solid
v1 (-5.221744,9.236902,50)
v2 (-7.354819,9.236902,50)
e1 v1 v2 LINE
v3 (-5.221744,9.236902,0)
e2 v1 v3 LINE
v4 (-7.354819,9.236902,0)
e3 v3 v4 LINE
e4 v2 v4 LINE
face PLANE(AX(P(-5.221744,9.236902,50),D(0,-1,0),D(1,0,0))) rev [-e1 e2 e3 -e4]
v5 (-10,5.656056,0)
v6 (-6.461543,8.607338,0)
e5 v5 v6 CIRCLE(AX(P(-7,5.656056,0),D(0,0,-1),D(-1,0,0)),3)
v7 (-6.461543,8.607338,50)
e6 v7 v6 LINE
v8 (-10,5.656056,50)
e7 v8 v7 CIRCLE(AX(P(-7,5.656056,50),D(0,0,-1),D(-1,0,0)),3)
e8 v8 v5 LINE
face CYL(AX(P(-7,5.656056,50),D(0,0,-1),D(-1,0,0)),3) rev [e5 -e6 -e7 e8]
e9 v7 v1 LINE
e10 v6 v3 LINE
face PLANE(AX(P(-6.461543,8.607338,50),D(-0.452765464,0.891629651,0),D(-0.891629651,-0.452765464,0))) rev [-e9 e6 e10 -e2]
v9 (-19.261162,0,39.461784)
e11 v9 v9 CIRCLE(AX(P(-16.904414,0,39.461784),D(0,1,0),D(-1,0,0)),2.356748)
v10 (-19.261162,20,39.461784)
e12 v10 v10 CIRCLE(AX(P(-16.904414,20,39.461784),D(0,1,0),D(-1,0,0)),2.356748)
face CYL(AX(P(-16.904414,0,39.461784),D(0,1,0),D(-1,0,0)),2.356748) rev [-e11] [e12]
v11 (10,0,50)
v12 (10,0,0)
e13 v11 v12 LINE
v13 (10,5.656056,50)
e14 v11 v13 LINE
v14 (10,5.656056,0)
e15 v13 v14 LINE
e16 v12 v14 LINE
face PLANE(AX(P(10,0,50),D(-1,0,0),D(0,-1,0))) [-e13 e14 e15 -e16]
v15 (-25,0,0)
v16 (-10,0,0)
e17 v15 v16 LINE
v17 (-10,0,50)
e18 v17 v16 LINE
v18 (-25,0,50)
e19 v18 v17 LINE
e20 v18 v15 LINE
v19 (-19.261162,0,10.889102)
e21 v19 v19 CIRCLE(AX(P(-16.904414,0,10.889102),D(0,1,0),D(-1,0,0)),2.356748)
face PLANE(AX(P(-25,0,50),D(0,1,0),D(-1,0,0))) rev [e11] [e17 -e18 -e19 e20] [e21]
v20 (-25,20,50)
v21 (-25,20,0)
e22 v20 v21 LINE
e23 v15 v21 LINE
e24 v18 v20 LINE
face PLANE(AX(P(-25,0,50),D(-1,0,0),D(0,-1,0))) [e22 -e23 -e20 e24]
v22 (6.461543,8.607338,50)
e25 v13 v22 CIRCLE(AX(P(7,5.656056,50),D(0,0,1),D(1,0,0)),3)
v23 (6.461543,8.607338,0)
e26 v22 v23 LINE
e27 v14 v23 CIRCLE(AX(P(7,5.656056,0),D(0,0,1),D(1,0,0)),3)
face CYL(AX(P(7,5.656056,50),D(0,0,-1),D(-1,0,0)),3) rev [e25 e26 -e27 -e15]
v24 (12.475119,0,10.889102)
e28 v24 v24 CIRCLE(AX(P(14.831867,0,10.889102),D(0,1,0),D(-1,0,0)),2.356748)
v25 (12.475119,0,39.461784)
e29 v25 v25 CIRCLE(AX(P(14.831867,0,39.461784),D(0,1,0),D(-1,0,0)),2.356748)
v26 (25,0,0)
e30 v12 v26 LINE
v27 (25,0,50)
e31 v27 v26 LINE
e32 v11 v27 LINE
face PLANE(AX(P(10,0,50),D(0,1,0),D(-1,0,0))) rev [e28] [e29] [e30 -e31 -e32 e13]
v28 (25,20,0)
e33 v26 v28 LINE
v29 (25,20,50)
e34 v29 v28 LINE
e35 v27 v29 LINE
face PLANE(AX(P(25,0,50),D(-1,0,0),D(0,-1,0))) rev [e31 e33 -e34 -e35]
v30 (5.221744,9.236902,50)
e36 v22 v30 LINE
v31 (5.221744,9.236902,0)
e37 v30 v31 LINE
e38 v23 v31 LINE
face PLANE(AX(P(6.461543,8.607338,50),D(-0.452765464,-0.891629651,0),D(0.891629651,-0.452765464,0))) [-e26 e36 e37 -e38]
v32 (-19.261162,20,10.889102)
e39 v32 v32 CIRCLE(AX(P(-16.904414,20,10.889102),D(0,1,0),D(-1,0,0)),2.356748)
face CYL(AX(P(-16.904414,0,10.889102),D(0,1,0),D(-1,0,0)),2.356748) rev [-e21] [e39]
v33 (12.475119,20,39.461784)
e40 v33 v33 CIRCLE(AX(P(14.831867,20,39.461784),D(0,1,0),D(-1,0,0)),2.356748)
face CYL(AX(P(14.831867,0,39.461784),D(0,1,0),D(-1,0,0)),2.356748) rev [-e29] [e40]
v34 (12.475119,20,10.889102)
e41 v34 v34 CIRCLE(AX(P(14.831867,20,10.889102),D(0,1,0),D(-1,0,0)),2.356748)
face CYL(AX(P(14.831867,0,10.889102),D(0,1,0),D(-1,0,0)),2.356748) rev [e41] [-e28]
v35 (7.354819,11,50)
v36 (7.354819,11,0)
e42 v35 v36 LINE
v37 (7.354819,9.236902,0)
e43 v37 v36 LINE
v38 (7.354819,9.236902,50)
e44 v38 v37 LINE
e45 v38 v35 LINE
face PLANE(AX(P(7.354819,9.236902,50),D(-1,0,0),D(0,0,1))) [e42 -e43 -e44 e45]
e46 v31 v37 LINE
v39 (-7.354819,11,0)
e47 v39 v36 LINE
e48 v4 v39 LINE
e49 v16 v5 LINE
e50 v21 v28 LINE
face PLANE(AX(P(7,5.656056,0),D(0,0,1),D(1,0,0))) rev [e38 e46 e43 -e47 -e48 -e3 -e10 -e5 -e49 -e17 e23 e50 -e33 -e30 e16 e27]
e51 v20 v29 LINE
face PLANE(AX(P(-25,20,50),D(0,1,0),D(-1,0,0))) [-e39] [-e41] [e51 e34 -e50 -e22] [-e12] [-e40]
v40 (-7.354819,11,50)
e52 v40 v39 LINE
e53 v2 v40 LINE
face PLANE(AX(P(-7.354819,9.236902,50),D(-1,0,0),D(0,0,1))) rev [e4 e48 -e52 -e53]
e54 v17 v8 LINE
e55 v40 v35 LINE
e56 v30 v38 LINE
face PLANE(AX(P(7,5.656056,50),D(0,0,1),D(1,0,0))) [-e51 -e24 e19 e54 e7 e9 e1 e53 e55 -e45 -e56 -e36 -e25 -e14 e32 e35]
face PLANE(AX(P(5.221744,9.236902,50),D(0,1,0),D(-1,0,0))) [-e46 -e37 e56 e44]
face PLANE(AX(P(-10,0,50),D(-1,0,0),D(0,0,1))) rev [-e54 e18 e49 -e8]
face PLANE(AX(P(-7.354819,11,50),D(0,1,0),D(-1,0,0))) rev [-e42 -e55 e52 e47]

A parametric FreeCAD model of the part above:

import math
import FreeCAD as App
import Part
import Sketcher
from FreeCAD import Vector
Q = App.Units.Quantity

doc = App.newDocument("Part")
body = doc.addObject("PartDesign::Body", "Body")

# Sketch on XY plane
sketch1 = body.newObject("Sketcher::SketchObject", "Sketch")
sketch1.AttachmentSupport = (doc.getObject("XY_Plane"), [""])
sketch1.MapMode = "FlatFace"
sketch1.addGeometry([
    Part.LineSegment(Vector(-10, 0, 0), Vector(-10, 5.7, 0)),  # 0
    Part.ArcOfCircle(Part.Circle(Vector(-7, 5.7, 0), Vector(0, 0, 1), 3), math.radians(80), math.radians(180)),  # 1
    Part.LineSegment(Vector(-6.5, 8.6, 0), Vector(-5.2, 9.2, 0)),  # 2
    Part.LineSegment(Vector(-5.2, 9.2, 0), Vector(-7.4, 9.2, 0)),  # 3
    Part.LineSegment(Vector(-7.4, 9.2, 0), Vector(-7.4, 11, 0)),  # 4
    Part.LineSegment(Vector(-7.4, 11, 0), Vector(7.4, 11, 0)),  # 5
    Part.LineSegment(Vector(7.4, 11, 0), Vector(7.4, 9.2, 0)),  # 6
    Part.LineSegment(Vector(7.4, 9.2, 0), Vector(5.2, 9.2, 0)),  # 7
    Part.LineSegment(Vector(5.2, 9.2, 0), Vector(6.5, 8.6, 0)),  # 8
    Part.ArcOfCircle(Part.Circle(Vector(7, 5.7, 0), Vector(0, 0, 1), 3), math.radians(0), math.radians(100)),  # 9
    Part.LineSegment(Vector(10, 5.7, 0), Vector(10, 0, 0)),  # 10
    Part.LineSegment(Vector(10, 0, 0), Vector(25, 0, 0)),  # 11
    Part.LineSegment(Vector(25, 0, 0), Vector(25, 20, 0)),  # 12
    Part.LineSegment(Vector(25, 20, 0), Vector(-25, 20, 0)),  # 13
    Part.LineSegment(Vector(-25, 20, 0), Vector(-25, 0, 0)),  # 14
    Part.LineSegment(Vector(-25, 0, 0), Vector(-10, 0, 0)),  # 15
], False)
sketch1.addConstraint([
    Sketcher.Constraint("Tangent", 0, 2, 1, 2),
    Sketcher.Constraint("Coincident", 1, 1, 2, 1),
    Sketcher.Constraint("Coincident", 2, 2, 3, 1),
    Sketcher.Constraint("Coincident", 3, 2, 4, 1),
    Sketcher.Constraint("Coincident", 4, 2, 5, 1),
    Sketcher.Constraint("Coincident", 5, 2, 6, 1),
    Sketcher.Constraint("Coincident", 6, 2, 7, 1),
    Sketcher.Constraint("Coincident", 7, 2, 8, 1),
    Sketcher.Constraint("Coincident", 8, 2, 9, 2),
    Sketcher.Constraint("Tangent", 9, 1, 10, 1),
    Sketcher.Constraint("Coincident", 10, 2, 11, 1),
    Sketcher.Constraint("Coincident", 11, 2, 12, 1),
    Sketcher.Constraint("Coincident", 12, 2, 13, 1),
    Sketcher.Constraint("Coincident", 13, 2, 14, 1),
    Sketcher.Constraint("Coincident", 14, 2, 15, 1),
    Sketcher.Constraint("Coincident", 15, 2, 0, 1),
    Sketcher.Constraint("Vertical", 0),
    Sketcher.Constraint("Horizontal", 3),
    Sketcher.Constraint("Vertical", 4),
    Sketcher.Constraint("Horizontal", 5),
    Sketcher.Constraint("Vertical", 6),
    Sketcher.Constraint("Horizontal", 7),
    Sketcher.Constraint("Vertical", 10),
    Sketcher.Constraint("Horizontal", 11),
    Sketcher.Constraint("Vertical", 12),
    Sketcher.Constraint("Horizontal", 13),
    Sketcher.Constraint("Vertical", 14),
    Sketcher.Constraint("Horizontal", 15),
    Sketcher.Constraint("Equal", 1, 9),
    Sketcher.Constraint("Symmetric", 11, 2, 14, 2, -1, 1),
    Sketcher.Constraint("Symmetric", 1, 3, 9, 3, -2),
    Sketcher.Constraint("Symmetric", 3, 2, 6, 2, -2),
    Sketcher.Constraint("PointOnObject", 10, 2, -1),
    Sketcher.Constraint("Horizontal", 1, 1, 8, 2),
    Sketcher.Constraint("Equal", 3, 7),
    Sketcher.Constraint("Radius", 1, Q("3 mm")),
    Sketcher.Constraint("DistanceX", 11, 1, 11, 2, Q("15 mm")),
    Sketcher.Constraint("DistanceX", 13, 2, 13, 1, Q("50 mm")),
    Sketcher.Constraint("DistanceY", 12, 1, 12, 2, Q("20 mm")),
    Sketcher.Constraint("DistanceY", -1, 1, 4, 2, Q("11 mm")),
    Sketcher.Constraint("DistanceX", 1, 1, 2, 2, Q("1.239799 mm")),
    Sketcher.Constraint("DistanceX", 3, 2, 3, 1, Q("2.133075 mm")),
    Sketcher.Constraint("DistanceX", 5, 1, 5, 2, Q("14.709637 mm")),
    Sketcher.Constraint("DistanceY", 0, 1, 0, 2, Q("5.656056 mm")),
    Sketcher.Constraint("DistanceY", 4, 1, 4, 2, Q("1.763098 mm")),
])
pad1 = body.newObject("PartDesign::Pad", "Pad")
pad1.Profile = sketch1
pad1.Length = 50

# Sketch on XZ plane
sketch2 = body.newObject("Sketcher::SketchObject", "Sketch001")
sketch2.AttachmentSupport = (doc.getObject("XZ_Plane"), [""])
sketch2.MapMode = "FlatFace"
sketch2.AttachmentOffset = App.Placement(Vector(0, 0, -20), App.Rotation())
sketch2.addGeometry([
    Part.Circle(Vector(14.8, 10.9, 0), Vector(0, 0, 1), 2.4),
    Part.Circle(Vector(14.8, 39.5, 0), Vector(0, 0, 1), 2.4),
    Part.Circle(Vector(-16.9, 39.5, 0), Vector(0, 0, 1), 2.4),
    Part.Circle(Vector(-16.9, 10.9, 0), Vector(0, 0, 1), 2.4),
], False)
sketch2.addConstraint([
    Sketcher.Constraint("Equal", 0, 1),
    Sketcher.Constraint("Equal", 1, 2),
    Sketcher.Constraint("Equal", 2, 3),
    Sketcher.Constraint("Horizontal", 1, 3, 2, 3),
    Sketcher.Constraint("Horizontal", 0, 3, 3, 3),
    Sketcher.Constraint("Vertical", 0, 3, 1, 3),
    Sketcher.Constraint("Vertical", 2, 3, 3, 3),
    Sketcher.Constraint("Diameter", 0, Q("4.713496 mm")),
    Sketcher.Constraint("DistanceY", 0, 3, 1, 3, Q("28.572682 mm")),
    Sketcher.Constraint("DistanceX", 2, 3, 1, 3, Q("31.736281 mm")),
    Sketcher.Constraint("DistanceX", -1, 1, 0, 3, Q("14.831867 mm")),
    Sketcher.Constraint("DistanceY", -1, 1, 0, 3, Q("10.889102 mm")),
])
pocket1 = body.newObject("PartDesign::Pocket", "Pocket")
pocket1.Profile = sketch2
pocket1.Length = 20
pocket1.Reversed = True

doc.recompute()
